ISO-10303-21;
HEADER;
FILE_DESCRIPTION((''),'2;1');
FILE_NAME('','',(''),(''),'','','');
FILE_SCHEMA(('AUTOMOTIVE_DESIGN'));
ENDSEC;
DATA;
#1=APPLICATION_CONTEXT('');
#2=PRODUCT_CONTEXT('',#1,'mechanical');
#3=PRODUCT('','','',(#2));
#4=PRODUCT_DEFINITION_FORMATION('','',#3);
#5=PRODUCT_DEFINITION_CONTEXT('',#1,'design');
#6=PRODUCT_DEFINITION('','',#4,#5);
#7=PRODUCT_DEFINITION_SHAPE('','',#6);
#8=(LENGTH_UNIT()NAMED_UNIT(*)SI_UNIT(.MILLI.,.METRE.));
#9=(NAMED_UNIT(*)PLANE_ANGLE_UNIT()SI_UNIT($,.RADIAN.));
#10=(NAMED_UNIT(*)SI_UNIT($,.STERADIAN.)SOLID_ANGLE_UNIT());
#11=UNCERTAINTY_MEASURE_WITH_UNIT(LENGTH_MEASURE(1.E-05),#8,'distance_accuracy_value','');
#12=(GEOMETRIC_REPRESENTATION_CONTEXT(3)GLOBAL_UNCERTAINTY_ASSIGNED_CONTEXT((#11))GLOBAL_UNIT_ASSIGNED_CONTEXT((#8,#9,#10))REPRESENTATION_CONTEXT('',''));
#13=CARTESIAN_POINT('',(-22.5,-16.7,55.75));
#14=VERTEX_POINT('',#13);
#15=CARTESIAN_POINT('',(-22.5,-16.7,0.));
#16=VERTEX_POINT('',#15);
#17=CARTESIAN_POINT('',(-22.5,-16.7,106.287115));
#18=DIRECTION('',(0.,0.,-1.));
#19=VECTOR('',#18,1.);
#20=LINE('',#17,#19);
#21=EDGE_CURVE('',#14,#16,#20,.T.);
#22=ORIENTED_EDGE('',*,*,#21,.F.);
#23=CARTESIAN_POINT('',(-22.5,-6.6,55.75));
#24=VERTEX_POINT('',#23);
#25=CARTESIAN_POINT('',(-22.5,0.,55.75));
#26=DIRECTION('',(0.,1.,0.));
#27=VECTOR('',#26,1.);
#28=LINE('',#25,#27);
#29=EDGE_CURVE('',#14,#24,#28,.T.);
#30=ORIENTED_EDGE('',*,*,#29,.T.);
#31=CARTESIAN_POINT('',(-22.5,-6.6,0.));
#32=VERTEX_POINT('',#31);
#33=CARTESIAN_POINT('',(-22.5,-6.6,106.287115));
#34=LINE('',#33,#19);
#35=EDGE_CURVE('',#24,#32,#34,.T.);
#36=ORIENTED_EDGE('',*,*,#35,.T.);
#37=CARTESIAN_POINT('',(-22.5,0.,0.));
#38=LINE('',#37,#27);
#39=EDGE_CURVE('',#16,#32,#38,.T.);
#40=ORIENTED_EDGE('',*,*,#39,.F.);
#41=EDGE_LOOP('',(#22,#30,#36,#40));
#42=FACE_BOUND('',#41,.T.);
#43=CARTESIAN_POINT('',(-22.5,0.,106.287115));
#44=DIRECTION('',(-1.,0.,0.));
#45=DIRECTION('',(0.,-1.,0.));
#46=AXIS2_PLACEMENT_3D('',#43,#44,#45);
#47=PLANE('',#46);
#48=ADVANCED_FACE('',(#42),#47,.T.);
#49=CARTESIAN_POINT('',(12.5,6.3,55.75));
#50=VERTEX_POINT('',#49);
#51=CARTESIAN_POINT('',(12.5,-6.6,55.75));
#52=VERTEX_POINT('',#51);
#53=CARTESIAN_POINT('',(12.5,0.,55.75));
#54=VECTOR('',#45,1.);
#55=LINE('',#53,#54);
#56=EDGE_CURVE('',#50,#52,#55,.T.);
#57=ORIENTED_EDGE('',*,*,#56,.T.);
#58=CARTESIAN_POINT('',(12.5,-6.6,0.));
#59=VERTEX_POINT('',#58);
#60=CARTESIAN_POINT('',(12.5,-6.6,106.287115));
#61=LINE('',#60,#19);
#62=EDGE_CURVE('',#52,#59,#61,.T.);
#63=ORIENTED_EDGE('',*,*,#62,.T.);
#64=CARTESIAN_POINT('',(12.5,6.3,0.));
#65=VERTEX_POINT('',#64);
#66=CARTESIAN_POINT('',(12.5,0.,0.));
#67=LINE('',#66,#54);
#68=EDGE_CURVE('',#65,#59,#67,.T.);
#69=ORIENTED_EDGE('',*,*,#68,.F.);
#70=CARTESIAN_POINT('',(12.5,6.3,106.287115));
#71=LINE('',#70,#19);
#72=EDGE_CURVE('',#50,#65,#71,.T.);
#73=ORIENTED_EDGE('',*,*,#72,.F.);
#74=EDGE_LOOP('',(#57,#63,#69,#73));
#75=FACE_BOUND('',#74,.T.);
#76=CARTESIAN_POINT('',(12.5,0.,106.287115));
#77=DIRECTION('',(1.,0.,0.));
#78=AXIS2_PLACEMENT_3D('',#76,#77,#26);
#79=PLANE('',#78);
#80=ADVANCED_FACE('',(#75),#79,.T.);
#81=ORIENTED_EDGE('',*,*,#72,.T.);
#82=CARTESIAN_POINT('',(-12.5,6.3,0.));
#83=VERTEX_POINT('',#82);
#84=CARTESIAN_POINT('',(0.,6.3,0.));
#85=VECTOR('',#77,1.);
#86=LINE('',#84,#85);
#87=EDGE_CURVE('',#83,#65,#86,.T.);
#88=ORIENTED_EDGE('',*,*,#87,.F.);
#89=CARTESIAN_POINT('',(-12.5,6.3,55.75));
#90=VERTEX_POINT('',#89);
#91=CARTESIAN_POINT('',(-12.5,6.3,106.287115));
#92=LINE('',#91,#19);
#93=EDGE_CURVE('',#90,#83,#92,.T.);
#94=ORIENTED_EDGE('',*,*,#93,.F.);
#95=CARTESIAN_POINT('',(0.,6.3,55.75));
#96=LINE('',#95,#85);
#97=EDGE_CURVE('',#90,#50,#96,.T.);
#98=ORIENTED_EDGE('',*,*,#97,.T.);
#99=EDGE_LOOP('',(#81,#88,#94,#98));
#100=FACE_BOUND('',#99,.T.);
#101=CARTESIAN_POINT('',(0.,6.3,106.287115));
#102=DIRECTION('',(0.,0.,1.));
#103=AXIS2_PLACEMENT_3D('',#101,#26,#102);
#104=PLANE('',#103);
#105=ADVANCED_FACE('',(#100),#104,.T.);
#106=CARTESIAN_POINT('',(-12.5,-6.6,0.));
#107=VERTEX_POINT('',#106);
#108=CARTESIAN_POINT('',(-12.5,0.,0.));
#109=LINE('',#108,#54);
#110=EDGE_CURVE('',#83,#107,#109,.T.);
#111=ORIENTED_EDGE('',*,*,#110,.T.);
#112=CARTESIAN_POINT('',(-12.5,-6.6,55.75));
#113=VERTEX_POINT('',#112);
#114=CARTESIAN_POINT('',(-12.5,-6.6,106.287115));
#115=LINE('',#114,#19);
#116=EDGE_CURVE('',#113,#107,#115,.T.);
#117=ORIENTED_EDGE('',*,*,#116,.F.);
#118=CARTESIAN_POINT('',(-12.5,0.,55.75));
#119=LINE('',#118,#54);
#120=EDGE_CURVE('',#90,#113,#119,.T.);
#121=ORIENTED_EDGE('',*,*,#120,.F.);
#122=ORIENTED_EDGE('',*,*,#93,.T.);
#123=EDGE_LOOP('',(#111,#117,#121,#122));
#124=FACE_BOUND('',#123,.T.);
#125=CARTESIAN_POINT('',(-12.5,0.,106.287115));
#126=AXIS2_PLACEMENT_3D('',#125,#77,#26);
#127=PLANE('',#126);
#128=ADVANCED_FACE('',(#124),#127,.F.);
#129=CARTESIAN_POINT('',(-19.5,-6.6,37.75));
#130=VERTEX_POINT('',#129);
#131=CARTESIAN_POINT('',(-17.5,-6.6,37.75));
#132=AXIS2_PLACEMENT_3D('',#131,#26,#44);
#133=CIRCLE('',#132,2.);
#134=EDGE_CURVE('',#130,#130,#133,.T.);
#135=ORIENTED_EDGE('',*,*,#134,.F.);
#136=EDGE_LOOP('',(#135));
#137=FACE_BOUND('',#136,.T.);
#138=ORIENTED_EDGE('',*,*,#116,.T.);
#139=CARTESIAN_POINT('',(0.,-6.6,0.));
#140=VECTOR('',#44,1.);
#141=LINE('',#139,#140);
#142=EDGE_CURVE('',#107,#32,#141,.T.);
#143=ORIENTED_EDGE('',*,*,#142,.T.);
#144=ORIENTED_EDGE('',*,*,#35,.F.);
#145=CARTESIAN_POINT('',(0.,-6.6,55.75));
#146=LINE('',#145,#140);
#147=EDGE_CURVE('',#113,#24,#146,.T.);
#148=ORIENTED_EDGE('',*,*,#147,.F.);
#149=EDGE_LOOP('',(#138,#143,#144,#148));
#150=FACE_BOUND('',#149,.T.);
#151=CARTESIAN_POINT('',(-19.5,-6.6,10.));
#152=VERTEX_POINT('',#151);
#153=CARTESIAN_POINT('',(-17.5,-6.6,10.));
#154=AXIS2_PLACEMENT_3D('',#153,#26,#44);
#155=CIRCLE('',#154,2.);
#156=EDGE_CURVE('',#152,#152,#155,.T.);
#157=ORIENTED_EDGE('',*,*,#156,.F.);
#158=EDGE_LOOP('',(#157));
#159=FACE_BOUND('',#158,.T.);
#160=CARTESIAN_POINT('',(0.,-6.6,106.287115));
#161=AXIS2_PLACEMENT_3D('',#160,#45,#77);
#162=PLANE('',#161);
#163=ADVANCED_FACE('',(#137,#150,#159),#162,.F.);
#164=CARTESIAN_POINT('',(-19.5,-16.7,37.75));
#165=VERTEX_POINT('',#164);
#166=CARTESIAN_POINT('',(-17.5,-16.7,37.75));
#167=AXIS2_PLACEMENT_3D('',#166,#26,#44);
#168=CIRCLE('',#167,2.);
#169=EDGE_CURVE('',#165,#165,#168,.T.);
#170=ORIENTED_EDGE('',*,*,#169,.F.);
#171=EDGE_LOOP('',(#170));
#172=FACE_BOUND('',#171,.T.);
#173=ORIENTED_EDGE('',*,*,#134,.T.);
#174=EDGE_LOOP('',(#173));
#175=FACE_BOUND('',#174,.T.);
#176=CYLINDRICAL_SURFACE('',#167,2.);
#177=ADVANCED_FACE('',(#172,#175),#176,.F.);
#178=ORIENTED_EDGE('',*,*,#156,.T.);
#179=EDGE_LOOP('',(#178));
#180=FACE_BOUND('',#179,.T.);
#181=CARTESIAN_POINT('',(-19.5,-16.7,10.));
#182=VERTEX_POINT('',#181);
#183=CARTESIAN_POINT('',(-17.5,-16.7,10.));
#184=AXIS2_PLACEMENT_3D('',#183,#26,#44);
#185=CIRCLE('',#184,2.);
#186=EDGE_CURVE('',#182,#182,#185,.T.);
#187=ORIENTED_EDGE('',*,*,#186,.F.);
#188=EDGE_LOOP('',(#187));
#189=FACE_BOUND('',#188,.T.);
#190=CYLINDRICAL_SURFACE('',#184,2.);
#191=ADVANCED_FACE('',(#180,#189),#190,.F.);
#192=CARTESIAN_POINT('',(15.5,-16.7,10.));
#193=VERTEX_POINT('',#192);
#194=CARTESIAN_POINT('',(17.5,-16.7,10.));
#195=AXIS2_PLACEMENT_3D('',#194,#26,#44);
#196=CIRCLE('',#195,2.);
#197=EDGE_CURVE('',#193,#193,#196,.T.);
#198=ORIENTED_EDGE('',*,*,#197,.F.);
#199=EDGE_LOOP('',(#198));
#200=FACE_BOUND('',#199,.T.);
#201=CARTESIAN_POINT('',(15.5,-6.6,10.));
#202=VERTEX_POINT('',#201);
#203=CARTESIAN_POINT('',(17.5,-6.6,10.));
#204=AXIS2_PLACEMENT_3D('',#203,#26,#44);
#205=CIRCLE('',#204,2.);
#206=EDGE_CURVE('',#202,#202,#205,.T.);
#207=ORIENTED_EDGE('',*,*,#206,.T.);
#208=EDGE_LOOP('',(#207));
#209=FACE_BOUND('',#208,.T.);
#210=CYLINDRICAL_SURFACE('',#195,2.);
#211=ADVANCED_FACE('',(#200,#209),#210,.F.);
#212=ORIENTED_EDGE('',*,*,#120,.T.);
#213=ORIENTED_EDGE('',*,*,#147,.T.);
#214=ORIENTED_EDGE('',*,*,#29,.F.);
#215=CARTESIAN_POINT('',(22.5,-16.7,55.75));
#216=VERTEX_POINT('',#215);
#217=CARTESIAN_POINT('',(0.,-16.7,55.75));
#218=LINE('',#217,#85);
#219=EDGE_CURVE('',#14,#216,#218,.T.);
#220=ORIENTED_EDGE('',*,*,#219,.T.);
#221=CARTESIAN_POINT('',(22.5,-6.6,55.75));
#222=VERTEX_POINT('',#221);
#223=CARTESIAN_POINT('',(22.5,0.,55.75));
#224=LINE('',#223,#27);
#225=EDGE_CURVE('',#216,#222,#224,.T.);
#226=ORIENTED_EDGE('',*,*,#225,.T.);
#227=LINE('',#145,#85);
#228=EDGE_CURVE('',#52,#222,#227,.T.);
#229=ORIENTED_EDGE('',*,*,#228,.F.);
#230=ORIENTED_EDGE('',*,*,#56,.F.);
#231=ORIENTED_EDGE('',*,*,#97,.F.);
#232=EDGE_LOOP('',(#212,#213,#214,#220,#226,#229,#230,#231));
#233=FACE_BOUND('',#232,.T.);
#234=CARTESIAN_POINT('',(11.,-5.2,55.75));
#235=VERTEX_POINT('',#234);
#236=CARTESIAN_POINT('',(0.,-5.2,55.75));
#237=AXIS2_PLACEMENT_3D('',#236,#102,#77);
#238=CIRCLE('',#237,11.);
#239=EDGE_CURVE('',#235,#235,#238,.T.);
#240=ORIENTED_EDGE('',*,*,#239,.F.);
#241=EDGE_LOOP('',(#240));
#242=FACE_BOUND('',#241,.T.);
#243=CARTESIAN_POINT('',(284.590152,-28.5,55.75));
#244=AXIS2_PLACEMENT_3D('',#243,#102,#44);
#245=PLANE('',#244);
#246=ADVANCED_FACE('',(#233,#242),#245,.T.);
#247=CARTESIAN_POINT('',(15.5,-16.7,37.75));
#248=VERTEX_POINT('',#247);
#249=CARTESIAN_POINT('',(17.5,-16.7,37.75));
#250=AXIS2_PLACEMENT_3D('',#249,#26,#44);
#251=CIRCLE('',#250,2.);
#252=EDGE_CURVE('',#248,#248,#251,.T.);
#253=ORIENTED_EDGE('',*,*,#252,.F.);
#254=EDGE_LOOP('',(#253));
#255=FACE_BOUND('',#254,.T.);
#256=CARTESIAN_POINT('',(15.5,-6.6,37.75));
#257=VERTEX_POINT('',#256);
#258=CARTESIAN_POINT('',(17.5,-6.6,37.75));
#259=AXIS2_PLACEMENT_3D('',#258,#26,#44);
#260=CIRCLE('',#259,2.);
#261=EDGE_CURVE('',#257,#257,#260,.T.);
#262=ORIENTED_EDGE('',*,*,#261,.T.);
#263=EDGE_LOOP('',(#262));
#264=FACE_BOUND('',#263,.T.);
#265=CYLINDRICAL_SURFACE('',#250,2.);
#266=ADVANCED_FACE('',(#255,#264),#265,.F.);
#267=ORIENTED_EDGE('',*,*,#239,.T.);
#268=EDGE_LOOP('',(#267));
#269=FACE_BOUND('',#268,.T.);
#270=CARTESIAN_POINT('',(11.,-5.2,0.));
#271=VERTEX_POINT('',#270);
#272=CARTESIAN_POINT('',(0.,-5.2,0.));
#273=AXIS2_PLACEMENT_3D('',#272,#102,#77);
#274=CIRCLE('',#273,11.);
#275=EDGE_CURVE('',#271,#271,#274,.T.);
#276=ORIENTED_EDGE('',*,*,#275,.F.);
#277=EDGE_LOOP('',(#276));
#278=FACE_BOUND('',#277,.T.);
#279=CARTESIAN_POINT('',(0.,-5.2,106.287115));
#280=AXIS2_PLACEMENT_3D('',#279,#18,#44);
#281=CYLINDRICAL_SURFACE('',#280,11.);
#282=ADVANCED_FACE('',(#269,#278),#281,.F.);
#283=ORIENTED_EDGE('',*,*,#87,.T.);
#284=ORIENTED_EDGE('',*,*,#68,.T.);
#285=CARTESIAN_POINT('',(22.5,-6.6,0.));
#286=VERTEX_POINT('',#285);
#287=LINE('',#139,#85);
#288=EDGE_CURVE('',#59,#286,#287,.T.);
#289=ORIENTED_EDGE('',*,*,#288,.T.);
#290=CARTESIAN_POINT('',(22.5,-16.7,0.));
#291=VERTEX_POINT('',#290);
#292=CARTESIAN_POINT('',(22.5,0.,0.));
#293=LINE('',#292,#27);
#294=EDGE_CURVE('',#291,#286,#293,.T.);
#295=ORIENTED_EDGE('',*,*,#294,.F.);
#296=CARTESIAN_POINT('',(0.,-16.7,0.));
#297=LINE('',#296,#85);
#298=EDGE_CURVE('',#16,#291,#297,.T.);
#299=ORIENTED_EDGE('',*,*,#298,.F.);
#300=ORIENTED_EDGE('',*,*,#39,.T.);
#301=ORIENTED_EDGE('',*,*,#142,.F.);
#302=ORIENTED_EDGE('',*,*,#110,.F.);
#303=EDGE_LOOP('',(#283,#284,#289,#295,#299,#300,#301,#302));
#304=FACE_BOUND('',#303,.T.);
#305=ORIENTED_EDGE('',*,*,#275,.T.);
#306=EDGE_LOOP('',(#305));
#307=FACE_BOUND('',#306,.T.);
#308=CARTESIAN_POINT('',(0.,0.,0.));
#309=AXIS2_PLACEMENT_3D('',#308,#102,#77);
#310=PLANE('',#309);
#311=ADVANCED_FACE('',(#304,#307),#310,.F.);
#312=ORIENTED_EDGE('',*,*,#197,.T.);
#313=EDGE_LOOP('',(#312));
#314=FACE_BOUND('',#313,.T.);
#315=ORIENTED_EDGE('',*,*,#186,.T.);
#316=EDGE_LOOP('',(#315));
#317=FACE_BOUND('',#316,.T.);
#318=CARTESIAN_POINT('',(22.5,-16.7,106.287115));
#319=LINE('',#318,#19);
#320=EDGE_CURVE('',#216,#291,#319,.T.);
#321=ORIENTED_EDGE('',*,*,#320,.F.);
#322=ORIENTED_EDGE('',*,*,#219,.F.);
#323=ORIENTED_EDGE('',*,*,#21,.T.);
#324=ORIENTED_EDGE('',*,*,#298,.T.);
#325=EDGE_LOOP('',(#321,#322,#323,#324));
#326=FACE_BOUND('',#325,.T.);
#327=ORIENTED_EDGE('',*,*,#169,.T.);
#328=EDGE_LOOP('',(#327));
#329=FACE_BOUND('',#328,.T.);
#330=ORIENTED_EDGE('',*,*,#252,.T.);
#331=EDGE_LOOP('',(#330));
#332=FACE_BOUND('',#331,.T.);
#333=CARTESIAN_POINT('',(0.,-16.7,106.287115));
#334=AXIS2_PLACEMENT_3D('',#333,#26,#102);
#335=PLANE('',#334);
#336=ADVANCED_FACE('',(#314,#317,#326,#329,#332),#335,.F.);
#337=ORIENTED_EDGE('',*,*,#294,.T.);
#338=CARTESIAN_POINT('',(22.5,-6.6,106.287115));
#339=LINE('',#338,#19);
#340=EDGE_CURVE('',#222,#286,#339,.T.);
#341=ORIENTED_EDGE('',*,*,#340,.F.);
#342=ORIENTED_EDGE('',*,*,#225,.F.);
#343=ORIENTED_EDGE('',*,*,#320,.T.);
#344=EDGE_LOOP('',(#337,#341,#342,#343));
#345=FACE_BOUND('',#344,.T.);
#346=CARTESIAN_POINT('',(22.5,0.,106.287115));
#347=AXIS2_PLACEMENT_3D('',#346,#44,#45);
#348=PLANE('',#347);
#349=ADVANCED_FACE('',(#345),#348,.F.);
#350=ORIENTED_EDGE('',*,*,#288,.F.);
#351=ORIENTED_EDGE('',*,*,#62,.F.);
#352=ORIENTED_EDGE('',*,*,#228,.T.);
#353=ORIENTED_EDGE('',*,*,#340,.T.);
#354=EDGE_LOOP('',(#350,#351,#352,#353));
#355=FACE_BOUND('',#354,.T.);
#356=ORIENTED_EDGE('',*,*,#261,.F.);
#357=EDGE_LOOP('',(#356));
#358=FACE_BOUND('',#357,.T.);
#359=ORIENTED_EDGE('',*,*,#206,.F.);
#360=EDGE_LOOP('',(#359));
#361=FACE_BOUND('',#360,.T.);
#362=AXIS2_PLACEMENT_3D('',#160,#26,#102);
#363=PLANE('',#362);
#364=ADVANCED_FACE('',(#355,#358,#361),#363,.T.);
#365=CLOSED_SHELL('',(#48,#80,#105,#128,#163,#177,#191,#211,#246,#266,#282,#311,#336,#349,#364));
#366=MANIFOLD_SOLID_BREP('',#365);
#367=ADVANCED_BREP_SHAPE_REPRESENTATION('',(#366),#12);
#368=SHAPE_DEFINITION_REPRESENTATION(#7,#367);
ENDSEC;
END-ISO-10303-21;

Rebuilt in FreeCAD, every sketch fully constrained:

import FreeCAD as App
import Part
import Sketcher


def add_polygon(sketch, points):
    """Adds a closed chain of lines whose ends are joined by coincident constraints."""
    first, n = sketch.GeometryCount, len(points)
    for a, b in zip(points, points[1:] + points[:1]):
        sketch.addGeometry(Part.LineSegment(App.Vector(*a, 0), App.Vector(*b, 0)), False)
    for i in range(n):
        sketch.addConstraint(Sketcher.Constraint("Coincident", first + i, 2, first + (i + 1) % n, 1))

doc = App.newDocument("Part")
body = doc.addObject("PartDesign::Body", "Body")

sketch1 = body.newObject("Sketcher::SketchObject", "Sketch")
sketch1.AttachmentSupport = (doc.getObject("XY_Plane"), [""])
sketch1.MapMode = "FlatFace"
add_polygon(sketch1, [(-12.5, 6.3), (-12.5, -6.6), (-22.5, -6.6), (-22.5, -16.7), (22.5, -16.7), (22.5, -6.6), (12.5, -6.6), (12.5, 6.3)])
sketch1.addGeometry(Part.Circle(App.Vector(0, -5.2, 0), App.Vector(0, 0, 1), 11), False)
sketch1.addConstraint(Sketcher.Constraint("Vertical", 0))
sketch1.addConstraint(Sketcher.Constraint("Horizontal", 1))
sketch1.addConstraint(Sketcher.Constraint("Vertical", 2))
sketch1.addConstraint(Sketcher.Constraint("Horizontal", 3))
sketch1.addConstraint(Sketcher.Constraint("Vertical", 4))
sketch1.addConstraint(Sketcher.Constraint("Horizontal", 5))
sketch1.addConstraint(Sketcher.Constraint("Vertical", 6))
sketch1.addConstraint(Sketcher.Constraint("Horizontal", 7))
sketch1.addConstraint(Sketcher.Constraint("Symmetric", 1, 2, 4, 2, -2))
sketch1.addConstraint(Sketcher.Constraint("PointOnObject", 8, 3, -2))
sketch1.addConstraint(Sketcher.Constraint("Equal", 1, 5))
sketch1.addConstraint(Sketcher.Constraint("Diameter", 8, 22.0))
sketch1.addConstraint(Sketcher.Constraint("DistanceX", 1, 2, 1, 1, 10.0))
sketch1.addConstraint(Sketcher.Constraint("DistanceX", 3, 1, 3, 2, 45.0))
sketch1.addConstraint(Sketcher.Constraint("DistanceY", 0, 2, 0, 1, 12.9))
sketch1.addConstraint(Sketcher.Constraint("DistanceY", 2, 2, 2, 1, 10.1))
sketch1.addConstraint(Sketcher.Constraint("DistanceY", 8, 3, -1, 1, 5.2))
sketch1.addConstraint(Sketcher.Constraint("DistanceY", 0, 2, -1, 1, 6.6))
pad1 = body.newObject("PartDesign::Pad", "Pad")
pad1.Profile = sketch1
pad1.Length = 55.75

sketch2 = body.newObject("Sketcher::SketchObject", "Sketch001")
sketch2.AttachmentSupport = (doc.getObject("XZ_Plane"), [""])
sketch2.MapMode = "FlatFace"
sketch2.AttachmentOffset = App.Placement(App.Vector(0, 0, 6.6), App.Rotation())
sketch2.addGeometry(Part.Circle(App.Vector(-17.5, 10, 0), App.Vector(0, 0, 1), 2), False)
sketch2.addGeometry(Part.Circle(App.Vector(17.5, 10, 0), App.Vector(0, 0, 1), 2), False)
sketch2.addGeometry(Part.Circle(App.Vector(-17.5, 37.75, 0), App.Vector(0, 0, 1), 2), False)
sketch2.addGeometry(Part.Circle(App.Vector(17.5, 37.75, 0), App.Vector(0, 0, 1), 2), False)
sketch2.addConstraint(Sketcher.Constraint("Equal", 0, 1))
sketch2.addConstraint(Sketcher.Constraint("Equal", 1, 2))
sketch2.addConstraint(Sketcher.Constraint("Equal", 2, 3))
sketch2.addConstraint(Sketcher.Constraint("Symmetric", 0, 3, 1, 3, -2))
sketch2.addConstraint(Sketcher.Constraint("Symmetric", 2, 3, 3, 3, -2))
sketch2.addConstraint(Sketcher.Constraint("Vertical", 0, 3, 2, 3))
sketch2.addConstraint(Sketcher.Constraint("Diameter", 0, 4.0))
sketch2.addConstraint(Sketcher.Constraint("DistanceY", -1, 1, 0, 3, 10.0))
sketch2.addConstraint(Sketcher.Constraint("DistanceX", 0, 3, 1, 3, 35.0))
sketch2.addConstraint(Sketcher.Constraint("DistanceY", -1, 1, 2, 3, 37.75))
pocket1 = body.newObject("PartDesign::Pocket", "Pocket")
pocket1.Profile = sketch2
pocket1.Type = "ThroughAll"
pocket1.Reversed = True

doc.recompute()
